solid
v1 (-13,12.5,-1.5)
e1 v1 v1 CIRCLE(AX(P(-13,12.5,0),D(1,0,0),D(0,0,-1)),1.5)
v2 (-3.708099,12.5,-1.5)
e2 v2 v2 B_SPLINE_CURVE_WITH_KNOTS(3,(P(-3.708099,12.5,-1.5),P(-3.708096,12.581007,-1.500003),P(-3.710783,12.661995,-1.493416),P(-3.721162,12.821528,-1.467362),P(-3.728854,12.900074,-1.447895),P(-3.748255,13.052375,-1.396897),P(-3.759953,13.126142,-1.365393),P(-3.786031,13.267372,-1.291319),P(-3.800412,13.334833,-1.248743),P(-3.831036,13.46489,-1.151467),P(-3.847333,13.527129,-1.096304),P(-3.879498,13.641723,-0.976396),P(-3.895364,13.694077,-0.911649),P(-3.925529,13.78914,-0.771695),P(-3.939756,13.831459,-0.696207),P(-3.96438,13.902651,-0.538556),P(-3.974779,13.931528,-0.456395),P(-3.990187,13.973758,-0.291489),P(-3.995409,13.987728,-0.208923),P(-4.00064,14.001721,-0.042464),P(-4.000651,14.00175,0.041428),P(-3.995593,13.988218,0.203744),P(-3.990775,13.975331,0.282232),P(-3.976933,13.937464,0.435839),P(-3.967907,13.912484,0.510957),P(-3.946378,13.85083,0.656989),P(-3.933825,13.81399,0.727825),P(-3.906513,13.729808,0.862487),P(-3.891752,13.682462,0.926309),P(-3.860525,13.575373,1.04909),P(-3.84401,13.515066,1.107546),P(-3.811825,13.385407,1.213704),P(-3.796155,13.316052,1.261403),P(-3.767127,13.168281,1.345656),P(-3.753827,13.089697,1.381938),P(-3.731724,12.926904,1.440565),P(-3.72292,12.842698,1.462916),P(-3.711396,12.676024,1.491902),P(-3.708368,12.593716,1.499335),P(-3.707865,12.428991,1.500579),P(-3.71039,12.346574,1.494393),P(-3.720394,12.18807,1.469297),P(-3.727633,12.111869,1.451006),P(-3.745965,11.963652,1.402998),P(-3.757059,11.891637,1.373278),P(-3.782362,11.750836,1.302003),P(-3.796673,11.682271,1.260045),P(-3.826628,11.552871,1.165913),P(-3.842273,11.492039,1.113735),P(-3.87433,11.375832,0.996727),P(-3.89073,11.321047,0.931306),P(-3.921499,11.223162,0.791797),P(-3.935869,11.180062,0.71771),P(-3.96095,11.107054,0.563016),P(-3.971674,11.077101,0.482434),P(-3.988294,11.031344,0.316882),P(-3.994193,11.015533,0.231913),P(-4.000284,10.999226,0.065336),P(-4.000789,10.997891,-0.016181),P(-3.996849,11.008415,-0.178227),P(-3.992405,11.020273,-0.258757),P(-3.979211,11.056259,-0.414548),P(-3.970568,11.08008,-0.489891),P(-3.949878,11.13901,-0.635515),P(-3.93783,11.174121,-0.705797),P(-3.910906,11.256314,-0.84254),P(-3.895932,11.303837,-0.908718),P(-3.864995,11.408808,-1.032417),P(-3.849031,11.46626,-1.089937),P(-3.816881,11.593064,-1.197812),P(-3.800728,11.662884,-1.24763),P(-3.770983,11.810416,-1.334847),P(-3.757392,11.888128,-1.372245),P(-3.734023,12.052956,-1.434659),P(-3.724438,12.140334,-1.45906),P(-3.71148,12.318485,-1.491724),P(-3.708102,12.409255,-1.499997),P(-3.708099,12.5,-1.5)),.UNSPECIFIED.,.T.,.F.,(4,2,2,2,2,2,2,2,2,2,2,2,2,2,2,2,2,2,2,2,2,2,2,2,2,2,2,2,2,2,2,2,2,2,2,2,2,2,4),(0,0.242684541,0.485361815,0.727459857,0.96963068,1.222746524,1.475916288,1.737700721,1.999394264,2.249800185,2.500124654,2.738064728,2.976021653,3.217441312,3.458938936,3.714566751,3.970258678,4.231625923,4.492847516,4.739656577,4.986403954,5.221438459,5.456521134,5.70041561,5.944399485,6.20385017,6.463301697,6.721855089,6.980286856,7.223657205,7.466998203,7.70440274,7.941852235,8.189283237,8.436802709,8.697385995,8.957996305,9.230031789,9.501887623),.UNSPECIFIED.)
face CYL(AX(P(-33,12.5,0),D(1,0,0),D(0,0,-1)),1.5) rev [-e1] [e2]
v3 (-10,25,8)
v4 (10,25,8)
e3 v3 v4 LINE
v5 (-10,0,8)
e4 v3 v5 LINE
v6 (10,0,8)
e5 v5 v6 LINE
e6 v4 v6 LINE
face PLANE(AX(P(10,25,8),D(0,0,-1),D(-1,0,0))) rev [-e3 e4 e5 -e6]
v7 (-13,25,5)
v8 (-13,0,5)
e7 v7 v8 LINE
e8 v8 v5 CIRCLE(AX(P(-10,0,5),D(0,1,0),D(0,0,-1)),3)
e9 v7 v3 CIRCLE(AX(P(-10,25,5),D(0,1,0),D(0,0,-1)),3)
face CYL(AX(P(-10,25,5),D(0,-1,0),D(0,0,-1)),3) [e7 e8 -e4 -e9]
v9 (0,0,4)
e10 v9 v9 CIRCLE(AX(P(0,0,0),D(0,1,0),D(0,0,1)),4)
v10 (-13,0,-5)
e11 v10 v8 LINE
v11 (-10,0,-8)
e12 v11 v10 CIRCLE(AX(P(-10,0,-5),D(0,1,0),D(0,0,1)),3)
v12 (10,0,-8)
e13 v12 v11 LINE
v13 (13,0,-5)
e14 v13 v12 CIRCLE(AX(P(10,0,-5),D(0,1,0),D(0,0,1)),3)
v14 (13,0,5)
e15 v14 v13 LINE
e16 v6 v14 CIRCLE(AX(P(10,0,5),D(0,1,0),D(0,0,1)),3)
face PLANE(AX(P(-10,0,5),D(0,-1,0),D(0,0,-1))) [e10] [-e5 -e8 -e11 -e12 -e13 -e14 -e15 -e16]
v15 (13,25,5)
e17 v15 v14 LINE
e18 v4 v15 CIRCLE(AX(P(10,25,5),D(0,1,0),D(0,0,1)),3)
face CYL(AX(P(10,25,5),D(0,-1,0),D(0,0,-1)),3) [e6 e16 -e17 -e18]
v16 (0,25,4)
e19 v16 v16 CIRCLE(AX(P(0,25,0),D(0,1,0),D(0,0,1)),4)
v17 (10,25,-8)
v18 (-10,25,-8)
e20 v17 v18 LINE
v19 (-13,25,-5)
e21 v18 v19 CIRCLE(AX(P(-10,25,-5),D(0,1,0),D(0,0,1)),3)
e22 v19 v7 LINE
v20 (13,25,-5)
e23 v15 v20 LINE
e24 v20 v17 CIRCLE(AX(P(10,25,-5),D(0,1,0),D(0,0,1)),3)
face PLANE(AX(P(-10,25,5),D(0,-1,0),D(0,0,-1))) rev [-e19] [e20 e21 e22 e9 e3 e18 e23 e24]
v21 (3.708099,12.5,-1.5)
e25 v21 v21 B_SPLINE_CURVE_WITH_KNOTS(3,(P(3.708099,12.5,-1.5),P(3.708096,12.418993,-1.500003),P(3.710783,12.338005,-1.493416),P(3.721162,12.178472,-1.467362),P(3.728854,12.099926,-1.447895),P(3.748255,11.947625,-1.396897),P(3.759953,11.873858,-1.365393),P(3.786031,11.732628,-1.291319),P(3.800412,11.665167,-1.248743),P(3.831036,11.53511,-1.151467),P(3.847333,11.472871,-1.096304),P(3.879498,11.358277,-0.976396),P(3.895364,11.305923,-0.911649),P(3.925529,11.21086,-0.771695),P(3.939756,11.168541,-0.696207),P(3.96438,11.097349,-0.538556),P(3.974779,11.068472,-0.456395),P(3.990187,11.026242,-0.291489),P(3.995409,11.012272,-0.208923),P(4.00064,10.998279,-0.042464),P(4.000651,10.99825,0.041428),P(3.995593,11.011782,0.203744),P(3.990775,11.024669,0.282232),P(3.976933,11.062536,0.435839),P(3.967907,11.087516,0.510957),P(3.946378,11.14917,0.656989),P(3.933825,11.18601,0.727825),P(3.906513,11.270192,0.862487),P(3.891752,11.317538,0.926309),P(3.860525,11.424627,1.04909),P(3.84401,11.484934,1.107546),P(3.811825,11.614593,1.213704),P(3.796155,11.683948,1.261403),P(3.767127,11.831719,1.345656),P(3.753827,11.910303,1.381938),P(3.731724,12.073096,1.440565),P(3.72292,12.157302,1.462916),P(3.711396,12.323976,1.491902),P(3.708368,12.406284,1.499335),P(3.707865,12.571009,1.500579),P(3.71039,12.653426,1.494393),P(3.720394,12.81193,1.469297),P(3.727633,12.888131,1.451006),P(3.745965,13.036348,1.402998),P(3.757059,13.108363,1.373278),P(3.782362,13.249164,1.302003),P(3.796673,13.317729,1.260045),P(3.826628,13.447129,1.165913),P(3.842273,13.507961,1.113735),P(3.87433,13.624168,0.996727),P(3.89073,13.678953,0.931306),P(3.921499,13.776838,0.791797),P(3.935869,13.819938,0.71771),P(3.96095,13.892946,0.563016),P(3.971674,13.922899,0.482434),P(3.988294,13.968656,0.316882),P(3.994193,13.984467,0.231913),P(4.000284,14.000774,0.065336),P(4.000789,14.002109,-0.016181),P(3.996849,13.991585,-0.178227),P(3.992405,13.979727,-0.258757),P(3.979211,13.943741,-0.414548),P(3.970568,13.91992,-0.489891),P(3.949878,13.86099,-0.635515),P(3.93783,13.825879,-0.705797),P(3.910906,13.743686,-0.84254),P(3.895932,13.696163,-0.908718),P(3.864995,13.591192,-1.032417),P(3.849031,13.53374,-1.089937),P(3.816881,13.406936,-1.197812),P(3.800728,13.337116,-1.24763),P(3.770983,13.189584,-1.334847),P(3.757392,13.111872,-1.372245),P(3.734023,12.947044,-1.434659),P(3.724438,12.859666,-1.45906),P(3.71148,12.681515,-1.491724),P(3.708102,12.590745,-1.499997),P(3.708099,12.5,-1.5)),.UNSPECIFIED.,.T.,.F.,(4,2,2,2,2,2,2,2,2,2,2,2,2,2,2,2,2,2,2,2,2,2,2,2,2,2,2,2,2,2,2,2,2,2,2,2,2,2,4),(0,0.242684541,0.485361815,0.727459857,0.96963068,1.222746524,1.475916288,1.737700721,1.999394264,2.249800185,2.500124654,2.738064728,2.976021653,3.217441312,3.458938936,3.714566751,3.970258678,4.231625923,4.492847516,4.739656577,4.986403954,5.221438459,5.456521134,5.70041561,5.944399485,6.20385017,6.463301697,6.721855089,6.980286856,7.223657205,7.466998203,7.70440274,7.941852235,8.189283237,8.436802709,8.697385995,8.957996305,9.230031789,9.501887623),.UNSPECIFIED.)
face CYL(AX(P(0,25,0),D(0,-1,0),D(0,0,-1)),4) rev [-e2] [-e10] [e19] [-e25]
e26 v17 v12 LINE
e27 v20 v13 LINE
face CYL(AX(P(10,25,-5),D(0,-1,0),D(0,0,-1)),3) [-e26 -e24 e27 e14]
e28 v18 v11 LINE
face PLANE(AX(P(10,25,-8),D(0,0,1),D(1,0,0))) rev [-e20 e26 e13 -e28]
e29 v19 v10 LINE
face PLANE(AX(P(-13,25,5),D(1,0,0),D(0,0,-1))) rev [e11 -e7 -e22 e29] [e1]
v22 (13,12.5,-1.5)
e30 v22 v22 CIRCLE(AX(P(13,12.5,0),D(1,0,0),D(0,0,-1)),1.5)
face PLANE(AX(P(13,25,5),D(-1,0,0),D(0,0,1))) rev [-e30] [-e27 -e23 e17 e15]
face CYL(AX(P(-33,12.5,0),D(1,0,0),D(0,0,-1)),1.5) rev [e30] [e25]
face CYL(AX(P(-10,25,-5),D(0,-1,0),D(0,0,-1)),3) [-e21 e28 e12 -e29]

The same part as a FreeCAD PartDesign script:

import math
import FreeCAD as App
import Part
import Sketcher
from FreeCAD import Vector
Q = App.Units.Quantity

doc = App.newDocument("Part")
body = doc.addObject("PartDesign::Body", "Body")

# Sketch on XZ plane
sketch1 = body.newObject("Sketcher::SketchObject", "Sketch")
sketch1.AttachmentSupport = (doc.getObject("XZ_Plane"), [""])
sketch1.MapMode = "FlatFace"
sketch1.addGeometry([
    Part.LineSegment(Vector(-10, 8, 0), Vector(10, 8, 0)),  # 0
    Part.ArcOfCircle(Part.Circle(Vector(10, 5, 0), Vector(0, 0, 1), 3), math.radians(0), math.radians(90)),  # 1
    Part.LineSegment(Vector(13, 5, 0), Vector(13, -5, 0)),  # 2
    Part.ArcOfCircle(Part.Circle(Vector(10, -5, 0), Vector(0, 0, 1), 3), math.radians(-90), math.radians(0)),  # 3
    Part.LineSegment(Vector(10, -8, 0), Vector(-10, -8, 0)),  # 4
    Part.ArcOfCircle(Part.Circle(Vector(-10, -5, 0), Vector(0, 0, 1), 3), math.radians(180), math.radians(270)),  # 5
    Part.LineSegment(Vector(-13, -5, 0), Vector(-13, 5, 0)),  # 6
    Part.ArcOfCircle(Part.Circle(Vector(-10, 5, 0), Vector(0, 0, 1), 3), math.radians(90), math.radians(180)),  # 7
    Part.Circle(Vector(0, 0, 0), Vector(0, 0, 1), 4),  # 8
], False)
sketch1.addConstraint([
    Sketcher.Constraint("Tangent", 0, 2, 1, 2),
    Sketcher.Constraint("Tangent", 1, 1, 2, 1),
    Sketcher.Constraint("Tangent", 2, 2, 3, 2),
    Sketcher.Constraint("Tangent", 3, 1, 4, 1),
    Sketcher.Constraint("Tangent", 4, 2, 5, 2),
    Sketcher.Constraint("Tangent", 5, 1, 6, 1),
    Sketcher.Constraint("Tangent", 6, 2, 7, 2),
    Sketcher.Constraint("Tangent", 7, 1, 0, 1),
    Sketcher.Constraint("Horizontal", 0),
    Sketcher.Constraint("Vertical", 2),
    Sketcher.Constraint("Horizontal", 4),
    Sketcher.Constraint("Vertical", 6),
    Sketcher.Constraint("Coincident", 8, 3, -1, 1),
    Sketcher.Constraint("Equal", 1, 3),
    Sketcher.Constraint("Equal", 3, 5),
    Sketcher.Constraint("Equal", 5, 7),
    Sketcher.Constraint("Symmetric", 1, 3, 5, 3, -1, 1),
    Sketcher.Constraint("Diameter", 8, Q("8 mm")),
    Sketcher.Constraint("Radius", 1, Q("3 mm")),
    Sketcher.Constraint("DistanceX", 0, 1, 0, 2, Q("20 mm")),
    Sketcher.Constraint("DistanceY", 2, 2, 2, 1, Q("10 mm")),
])
pad1 = body.newObject("PartDesign::Pad", "Pad")
pad1.Profile = sketch1
pad1.Length = 25
pad1.Reversed = True

# Sketch on YZ plane
sketch2 = body.newObject("Sketcher::SketchObject", "Sketch001")
sketch2.AttachmentSupport = (doc.getObject("YZ_Plane"), [""])
sketch2.MapMode = "FlatFace"
sketch2.AttachmentOffset = App.Placement(Vector(0, 0, 13), App.Rotation())
sketch2.addGeometry(Part.Circle(Vector(12.5, 0, 0), Vector(0, 0, 1), 1.5), False)
sketch2.addConstraint([
    Sketcher.Constraint("PointOnObject", 0, 3, -1),
    Sketcher.Constraint("Diameter", 0, Q("3 mm")),
    Sketcher.Constraint("DistanceX", -1, 1, 0, 3, Q("12.5 mm")),
])
pocket1 = body.newObject("PartDesign::Pocket", "Pocket")
pocket1.Profile = sketch2
pocket1.Length = 46

doc.recompute()
